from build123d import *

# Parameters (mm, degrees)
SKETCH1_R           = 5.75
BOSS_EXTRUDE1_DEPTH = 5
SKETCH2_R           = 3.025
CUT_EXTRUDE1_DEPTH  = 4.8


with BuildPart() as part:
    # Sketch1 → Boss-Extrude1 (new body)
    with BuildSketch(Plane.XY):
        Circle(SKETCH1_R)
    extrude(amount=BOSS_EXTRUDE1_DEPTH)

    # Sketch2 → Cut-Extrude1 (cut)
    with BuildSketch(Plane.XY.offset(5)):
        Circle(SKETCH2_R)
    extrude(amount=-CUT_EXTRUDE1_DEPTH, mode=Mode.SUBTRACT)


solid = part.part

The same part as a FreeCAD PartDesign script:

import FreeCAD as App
import Part
import Sketcher
Q = App.Units.Quantity

doc = App.newDocument("Part")
body = doc.addObject("PartDesign::Body", "Body")

# Sketch on XY plane
sketch1 = doc.addObject("Sketcher::SketchObject", "Sketch")
body.addObject(sketch1)
sketch1.AttachmentSupport = (doc.XY_Plane, [""])
sketch1.MapMode = "FlatFace"
sketch1.addGeometry(Part.Circle(App.Vector(0, 0, 0), App.Vector(0, 0, 1), 6), False)
sketch1.addConstraint(Sketcher.Constraint("Coincident", 0, 3, -1, 1))
sketch1.addConstraint(Sketcher.Constraint("Diameter", 0, Q("11.5 mm")))
pad1 = doc.addObject("PartDesign::Pad", "Pad")
body.addObject(pad1)
pad1.Profile = sketch1
pad1.Length = 5

# Sketch on XY plane
sketch2 = doc.addObject("Sketcher::SketchObject", "Sketch001")
body.addObject(sketch2)
sketch2.AttachmentSupport = (doc.XY_Plane, [""])
sketch2.MapMode = "FlatFace"
sketch2.AttachmentOffset = App.Placement(App.Vector(0, 0, 5), App.Rotation())
sketch2.addGeometry(Part.Circle(App.Vector(0, 0, 0), App.Vector(0, 0, 1), 3), False)
sketch2.addConstraint(Sketcher.Constraint("Coincident", 0, 3, -1, 1))
sketch2.addConstraint(Sketcher.Constraint("Diameter", 0, Q("6.05 mm")))
pocket1 = doc.addObject("PartDesign::Pocket", "Pocket")
body.addObject(pocket1)
pocket1.Profile = sketch2
pocket1.Length = 4.8

doc.recompute()
